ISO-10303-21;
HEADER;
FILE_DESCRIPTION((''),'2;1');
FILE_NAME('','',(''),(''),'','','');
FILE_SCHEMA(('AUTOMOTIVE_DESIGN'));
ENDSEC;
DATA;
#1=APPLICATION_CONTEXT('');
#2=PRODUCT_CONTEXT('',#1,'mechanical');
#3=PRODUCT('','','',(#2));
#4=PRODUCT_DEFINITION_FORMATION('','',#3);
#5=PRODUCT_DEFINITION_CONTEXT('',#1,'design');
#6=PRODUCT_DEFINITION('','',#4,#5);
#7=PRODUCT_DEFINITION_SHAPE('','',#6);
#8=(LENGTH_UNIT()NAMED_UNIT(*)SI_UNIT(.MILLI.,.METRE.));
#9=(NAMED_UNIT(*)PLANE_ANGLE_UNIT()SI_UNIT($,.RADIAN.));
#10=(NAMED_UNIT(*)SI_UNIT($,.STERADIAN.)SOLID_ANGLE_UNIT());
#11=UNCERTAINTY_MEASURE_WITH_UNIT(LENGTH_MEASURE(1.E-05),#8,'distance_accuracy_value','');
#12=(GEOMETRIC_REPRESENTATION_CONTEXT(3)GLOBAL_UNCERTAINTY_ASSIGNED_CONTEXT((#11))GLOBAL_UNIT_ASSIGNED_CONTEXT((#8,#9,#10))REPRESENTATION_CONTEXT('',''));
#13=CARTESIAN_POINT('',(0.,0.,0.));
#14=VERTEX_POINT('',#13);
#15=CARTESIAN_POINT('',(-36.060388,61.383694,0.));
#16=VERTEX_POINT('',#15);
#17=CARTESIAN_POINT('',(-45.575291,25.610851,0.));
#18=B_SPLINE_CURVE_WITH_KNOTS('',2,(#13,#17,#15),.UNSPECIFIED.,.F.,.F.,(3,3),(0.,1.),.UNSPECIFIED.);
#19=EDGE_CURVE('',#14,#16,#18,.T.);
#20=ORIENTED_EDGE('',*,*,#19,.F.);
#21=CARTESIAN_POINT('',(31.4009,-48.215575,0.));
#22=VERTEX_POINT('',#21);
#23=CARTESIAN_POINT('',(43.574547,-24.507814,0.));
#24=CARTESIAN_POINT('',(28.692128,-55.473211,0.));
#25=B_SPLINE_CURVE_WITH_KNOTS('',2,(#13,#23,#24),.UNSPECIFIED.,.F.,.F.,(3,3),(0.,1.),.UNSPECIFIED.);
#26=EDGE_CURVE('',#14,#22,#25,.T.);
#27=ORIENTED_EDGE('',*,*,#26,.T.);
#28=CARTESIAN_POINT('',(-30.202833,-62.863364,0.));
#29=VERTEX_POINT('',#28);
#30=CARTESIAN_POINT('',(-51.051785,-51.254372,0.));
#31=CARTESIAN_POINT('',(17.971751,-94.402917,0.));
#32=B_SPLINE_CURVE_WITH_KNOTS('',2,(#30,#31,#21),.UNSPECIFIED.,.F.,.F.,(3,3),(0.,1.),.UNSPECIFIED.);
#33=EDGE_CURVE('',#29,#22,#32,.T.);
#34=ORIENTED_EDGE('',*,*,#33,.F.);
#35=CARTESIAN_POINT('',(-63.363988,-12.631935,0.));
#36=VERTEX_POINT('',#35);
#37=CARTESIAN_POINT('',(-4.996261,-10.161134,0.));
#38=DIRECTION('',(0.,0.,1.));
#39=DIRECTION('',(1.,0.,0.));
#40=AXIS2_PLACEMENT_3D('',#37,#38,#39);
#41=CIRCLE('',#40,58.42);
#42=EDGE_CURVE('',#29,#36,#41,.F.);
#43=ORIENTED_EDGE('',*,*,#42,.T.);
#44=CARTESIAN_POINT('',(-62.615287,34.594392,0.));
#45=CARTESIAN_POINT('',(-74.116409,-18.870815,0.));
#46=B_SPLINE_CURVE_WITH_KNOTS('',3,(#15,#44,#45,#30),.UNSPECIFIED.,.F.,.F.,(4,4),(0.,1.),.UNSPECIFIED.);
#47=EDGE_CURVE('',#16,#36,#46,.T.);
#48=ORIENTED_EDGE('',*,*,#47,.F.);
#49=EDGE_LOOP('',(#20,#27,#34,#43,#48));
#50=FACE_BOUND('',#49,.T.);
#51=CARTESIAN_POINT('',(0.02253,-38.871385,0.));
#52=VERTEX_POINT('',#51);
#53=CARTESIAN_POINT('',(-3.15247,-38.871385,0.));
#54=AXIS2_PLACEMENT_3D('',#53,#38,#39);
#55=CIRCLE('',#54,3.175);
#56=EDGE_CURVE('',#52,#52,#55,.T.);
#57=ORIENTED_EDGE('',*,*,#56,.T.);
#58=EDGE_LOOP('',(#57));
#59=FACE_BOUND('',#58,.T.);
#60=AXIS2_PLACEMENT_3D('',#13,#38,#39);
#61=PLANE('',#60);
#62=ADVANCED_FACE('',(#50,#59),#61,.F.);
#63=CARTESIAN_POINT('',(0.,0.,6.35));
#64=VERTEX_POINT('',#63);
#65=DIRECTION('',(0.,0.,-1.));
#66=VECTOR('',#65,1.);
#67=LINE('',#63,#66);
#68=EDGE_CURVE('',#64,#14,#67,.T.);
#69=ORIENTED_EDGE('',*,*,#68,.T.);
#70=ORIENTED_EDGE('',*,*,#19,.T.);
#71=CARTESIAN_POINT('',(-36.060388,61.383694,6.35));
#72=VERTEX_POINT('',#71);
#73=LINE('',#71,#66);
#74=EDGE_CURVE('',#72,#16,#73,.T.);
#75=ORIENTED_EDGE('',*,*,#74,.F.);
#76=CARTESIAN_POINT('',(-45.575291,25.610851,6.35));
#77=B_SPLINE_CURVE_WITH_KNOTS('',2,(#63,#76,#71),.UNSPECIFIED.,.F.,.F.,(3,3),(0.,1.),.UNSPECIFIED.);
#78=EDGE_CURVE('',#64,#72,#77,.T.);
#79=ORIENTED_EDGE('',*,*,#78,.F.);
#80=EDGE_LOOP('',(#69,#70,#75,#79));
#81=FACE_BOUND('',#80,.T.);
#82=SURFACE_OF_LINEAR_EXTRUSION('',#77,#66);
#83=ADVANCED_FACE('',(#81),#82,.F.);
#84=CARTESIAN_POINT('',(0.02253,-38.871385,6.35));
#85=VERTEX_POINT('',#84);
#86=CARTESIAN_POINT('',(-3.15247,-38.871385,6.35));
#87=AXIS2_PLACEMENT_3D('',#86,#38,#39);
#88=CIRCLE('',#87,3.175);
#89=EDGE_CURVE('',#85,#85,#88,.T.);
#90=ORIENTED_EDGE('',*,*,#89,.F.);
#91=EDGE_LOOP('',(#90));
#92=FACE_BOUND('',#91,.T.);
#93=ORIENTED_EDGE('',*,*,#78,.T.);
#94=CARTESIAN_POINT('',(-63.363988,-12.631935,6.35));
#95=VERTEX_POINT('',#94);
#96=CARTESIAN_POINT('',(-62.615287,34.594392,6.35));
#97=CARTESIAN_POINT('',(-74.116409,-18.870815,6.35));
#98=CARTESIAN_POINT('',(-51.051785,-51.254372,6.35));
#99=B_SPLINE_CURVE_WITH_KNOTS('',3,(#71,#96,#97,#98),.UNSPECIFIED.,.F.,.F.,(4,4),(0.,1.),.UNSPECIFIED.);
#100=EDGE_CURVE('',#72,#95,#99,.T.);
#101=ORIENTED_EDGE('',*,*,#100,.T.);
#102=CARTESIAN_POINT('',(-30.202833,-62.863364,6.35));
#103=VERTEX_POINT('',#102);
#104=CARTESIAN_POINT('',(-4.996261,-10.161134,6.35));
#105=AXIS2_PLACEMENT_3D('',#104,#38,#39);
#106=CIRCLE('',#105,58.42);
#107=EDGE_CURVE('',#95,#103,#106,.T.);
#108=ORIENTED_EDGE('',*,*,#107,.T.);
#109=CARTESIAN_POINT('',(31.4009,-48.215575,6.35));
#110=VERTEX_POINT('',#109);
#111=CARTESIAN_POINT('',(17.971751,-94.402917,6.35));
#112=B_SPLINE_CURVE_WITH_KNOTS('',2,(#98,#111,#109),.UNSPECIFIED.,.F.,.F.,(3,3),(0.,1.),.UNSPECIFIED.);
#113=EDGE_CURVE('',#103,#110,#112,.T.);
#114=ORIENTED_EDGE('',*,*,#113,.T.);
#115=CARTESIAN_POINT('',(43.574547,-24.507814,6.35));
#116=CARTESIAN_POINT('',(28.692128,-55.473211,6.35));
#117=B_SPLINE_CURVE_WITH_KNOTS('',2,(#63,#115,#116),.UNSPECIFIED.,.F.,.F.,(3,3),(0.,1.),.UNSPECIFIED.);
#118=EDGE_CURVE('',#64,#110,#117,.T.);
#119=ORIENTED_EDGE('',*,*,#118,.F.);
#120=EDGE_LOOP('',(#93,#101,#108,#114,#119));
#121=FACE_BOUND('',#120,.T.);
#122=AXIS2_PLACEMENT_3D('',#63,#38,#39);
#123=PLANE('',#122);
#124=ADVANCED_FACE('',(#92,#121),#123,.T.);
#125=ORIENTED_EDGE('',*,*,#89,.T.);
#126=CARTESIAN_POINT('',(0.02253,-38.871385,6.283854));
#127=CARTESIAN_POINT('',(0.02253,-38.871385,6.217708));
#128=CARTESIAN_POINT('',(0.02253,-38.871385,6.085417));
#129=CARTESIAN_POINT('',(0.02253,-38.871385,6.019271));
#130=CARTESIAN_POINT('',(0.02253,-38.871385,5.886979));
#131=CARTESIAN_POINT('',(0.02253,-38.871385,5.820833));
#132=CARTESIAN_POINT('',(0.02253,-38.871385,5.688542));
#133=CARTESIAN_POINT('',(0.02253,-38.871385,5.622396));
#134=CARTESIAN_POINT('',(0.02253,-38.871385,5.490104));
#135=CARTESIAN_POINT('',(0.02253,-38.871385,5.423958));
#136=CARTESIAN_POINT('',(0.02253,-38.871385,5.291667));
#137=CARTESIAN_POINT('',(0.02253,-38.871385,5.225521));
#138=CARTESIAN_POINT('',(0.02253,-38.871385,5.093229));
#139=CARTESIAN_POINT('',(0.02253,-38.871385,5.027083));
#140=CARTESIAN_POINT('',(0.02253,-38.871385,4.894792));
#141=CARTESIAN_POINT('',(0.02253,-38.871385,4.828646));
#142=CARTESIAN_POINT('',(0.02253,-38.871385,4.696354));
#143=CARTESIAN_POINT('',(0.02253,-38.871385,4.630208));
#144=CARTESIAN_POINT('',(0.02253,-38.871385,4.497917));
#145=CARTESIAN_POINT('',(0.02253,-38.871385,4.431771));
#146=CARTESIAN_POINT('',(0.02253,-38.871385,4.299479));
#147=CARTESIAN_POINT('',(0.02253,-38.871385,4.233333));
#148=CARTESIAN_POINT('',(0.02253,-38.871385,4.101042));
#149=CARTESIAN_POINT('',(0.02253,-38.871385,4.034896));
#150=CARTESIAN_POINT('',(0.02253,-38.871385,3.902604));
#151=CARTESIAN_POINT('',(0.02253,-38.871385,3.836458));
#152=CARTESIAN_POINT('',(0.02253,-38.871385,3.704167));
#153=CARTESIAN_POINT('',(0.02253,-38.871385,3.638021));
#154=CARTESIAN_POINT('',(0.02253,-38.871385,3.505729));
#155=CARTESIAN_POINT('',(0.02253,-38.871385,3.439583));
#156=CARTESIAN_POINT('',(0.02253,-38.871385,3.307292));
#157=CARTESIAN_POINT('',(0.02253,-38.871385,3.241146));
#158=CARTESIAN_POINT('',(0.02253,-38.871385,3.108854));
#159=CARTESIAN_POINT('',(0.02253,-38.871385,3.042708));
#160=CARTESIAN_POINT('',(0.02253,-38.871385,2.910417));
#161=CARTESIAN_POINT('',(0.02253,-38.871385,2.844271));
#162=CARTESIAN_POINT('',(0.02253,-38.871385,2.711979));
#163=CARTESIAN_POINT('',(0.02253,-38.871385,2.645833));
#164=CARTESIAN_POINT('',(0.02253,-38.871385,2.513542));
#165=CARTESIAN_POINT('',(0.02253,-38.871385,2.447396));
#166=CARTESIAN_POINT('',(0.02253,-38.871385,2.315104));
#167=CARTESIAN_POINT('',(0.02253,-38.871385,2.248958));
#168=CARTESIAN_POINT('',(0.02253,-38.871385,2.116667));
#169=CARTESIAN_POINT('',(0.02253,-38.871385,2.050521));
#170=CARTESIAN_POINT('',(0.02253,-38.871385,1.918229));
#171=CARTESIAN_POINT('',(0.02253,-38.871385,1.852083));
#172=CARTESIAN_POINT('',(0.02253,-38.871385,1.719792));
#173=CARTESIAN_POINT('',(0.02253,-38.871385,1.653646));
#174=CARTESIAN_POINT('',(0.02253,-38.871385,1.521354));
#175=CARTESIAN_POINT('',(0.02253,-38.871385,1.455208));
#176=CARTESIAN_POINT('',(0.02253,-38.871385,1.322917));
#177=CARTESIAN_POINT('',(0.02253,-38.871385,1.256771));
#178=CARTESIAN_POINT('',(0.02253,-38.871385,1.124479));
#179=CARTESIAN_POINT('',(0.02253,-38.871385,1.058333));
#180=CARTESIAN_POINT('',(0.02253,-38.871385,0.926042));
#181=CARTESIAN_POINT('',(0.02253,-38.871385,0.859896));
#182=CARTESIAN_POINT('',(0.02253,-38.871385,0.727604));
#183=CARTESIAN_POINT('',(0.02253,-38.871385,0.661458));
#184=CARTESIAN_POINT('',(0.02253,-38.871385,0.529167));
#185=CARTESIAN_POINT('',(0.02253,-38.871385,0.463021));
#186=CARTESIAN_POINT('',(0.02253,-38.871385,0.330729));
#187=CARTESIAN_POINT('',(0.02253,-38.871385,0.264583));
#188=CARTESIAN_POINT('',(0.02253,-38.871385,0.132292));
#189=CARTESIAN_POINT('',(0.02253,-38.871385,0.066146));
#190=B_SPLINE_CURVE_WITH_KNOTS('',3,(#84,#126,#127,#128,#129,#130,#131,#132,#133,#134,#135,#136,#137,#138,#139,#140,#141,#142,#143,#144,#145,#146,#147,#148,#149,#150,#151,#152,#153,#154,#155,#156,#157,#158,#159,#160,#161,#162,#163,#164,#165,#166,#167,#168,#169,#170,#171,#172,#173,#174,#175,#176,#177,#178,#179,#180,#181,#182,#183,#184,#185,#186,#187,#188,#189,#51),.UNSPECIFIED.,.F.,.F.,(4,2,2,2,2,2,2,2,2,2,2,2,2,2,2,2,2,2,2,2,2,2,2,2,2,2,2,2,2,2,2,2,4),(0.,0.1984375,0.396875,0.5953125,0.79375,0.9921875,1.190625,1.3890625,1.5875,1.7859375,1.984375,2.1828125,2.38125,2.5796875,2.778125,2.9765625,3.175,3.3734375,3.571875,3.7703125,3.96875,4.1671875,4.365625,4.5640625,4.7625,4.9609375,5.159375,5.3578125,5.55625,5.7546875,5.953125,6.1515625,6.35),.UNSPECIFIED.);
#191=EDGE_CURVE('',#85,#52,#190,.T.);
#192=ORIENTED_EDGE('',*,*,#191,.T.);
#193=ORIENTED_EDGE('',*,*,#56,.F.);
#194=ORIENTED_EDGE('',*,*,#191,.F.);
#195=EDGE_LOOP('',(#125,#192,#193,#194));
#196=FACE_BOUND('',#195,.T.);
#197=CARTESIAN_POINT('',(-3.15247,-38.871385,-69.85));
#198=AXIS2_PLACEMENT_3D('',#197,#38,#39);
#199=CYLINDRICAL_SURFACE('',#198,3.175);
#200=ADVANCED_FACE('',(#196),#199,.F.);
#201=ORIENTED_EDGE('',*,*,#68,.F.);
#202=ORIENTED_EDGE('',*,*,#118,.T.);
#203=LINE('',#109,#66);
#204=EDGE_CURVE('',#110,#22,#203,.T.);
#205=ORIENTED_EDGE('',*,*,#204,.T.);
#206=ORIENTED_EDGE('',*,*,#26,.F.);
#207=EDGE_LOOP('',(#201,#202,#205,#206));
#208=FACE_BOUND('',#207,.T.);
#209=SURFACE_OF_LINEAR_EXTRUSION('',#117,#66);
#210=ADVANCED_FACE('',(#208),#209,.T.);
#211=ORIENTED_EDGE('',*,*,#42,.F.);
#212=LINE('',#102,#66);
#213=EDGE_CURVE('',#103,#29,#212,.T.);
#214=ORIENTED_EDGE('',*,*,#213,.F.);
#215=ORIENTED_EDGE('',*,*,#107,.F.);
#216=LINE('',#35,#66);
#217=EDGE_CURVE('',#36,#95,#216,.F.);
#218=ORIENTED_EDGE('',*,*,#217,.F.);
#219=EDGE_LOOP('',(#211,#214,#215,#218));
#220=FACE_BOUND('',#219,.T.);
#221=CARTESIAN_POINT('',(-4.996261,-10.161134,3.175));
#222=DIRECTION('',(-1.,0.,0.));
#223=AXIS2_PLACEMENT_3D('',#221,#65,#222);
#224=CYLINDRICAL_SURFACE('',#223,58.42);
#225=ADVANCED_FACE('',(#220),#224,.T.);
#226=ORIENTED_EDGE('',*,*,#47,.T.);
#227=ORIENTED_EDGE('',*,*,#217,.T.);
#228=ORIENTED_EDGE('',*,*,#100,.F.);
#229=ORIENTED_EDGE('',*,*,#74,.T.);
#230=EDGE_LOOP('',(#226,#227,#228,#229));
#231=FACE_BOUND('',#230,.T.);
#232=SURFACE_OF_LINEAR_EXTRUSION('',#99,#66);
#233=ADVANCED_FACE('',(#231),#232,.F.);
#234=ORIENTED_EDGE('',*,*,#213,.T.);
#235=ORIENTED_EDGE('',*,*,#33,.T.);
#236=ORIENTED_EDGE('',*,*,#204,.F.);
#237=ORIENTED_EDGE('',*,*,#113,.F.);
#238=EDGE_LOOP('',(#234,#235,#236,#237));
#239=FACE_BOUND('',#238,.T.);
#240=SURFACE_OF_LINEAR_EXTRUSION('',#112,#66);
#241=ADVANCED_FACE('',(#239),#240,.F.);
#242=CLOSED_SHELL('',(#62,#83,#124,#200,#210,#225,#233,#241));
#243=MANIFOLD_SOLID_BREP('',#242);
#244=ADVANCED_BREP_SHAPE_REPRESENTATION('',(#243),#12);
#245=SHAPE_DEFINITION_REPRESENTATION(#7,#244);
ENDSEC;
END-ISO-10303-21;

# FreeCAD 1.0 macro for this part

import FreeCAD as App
import Part
import Sketcher

V = App.Vector
Q = App.Units.Quantity


def edges_at(feature, points):
    """Names of the edges that pass closest to the given points."""
    edges = feature.Shape.Edges
    near = lambda p: min(range(len(edges)), key=lambda i: edges[i].distToShape(Part.Vertex(*p))[0])
    return sorted({f"Edge{near(p) + 1}" for p in points})

doc = App.newDocument("Part")
body = doc.addObject("PartDesign::Body", "Body")

# Sketch on XY plane
sketch1 = body.newObject("Sketcher::SketchObject", "Sketch")
sketch1.AttachmentSupport = (doc.getObject("XY_Plane"), [""])
sketch1.MapMode = "FlatFace"
sketch1.addGeometry([
    Part.BSplineCurve([V(0, 0, 0), V(38.404098, -21.599777, 0), V(31.4009, -48.215575, 0)], [3, 3], [0, 0.881342447], False, 2, [1, 1, 1], False),  # 0
    Part.BSplineCurve([V(0, 0, 0), V(-45.575291, 25.610851, 0), V(-36.060388, 61.383694, 0)], [3, 3], [0, 1], False, 2, [1, 1, 1], False),  # 1
    Part.BSplineCurve([V(-36.060388, 61.383694, 0), V(-62.615287, 34.594392, 0), V(-74.116409, -18.870815, 0), V(-51.051785, -51.254372, 0)], [4, 4], [0, 1], False, 3, [1, 1, 1, 1], False),  # 2
    Part.BSplineCurve([V(-51.051785, -51.254372, 0), V(12.058895, -90.706626, 0), V(28.692128, -55.473211, 0)], [3, 3], [0, 0.914335656], False, 2, [1, 1, 1], False),  # 3
    Part.BSplineCurve([V(28.692128, -55.473211, 0), V(30.2505, -52.172183, 0), V(31.4009, -48.215575, 0)], [3, 3], [0.914335656, 1], False, 2, [1, 1, 1], False),  # 4
], False)
sketch1.addConstraint([
    Sketcher.Constraint("Block", 0),
    Sketcher.Constraint("Block", 1),
    Sketcher.Constraint("Block", 2),
    Sketcher.Constraint("Block", 3),
    Sketcher.Constraint("Block", 4),
])
pad1 = body.newObject("PartDesign::Pad", "Pad")
pad1.Profile = sketch1
pad1.Length = Q("0.25 in")

# Sketch on XY plane
sketch2 = body.newObject("Sketcher::SketchObject", "Sketch001")
sketch2.AttachmentSupport = (doc.getObject("XY_Plane"), [""])
sketch2.MapMode = "FlatFace"
sketch2.AttachmentOffset = App.Placement(V(0, 0, 0.25 * 25.4), App.Rotation())
sketch2.addGeometry(Part.Circle(V(-3.2, -38.9, 0), V(0, 0, 1), 3.2), False)
sketch2.addConstraint([
    Sketcher.Constraint("Diameter", 0, Q("0.25 in")),
    Sketcher.Constraint("DistanceX", 0, 3, -1, 1, Q("3.15247 mm")),
    Sketcher.Constraint("DistanceY", 0, 3, -1, 1, Q("38.871385 mm")),
])
pocket1 = body.newObject("PartDesign::Pocket", "Pocket")
pocket1.Profile = sketch2
pocket1.Length = Q("3 in")
doc.recompute()

fillet = body.newObject("PartDesign::Fillet", "Fillet")
fillet.Base = (pocket1, edges_at(pocket1, [(-51.052, -51.254, 3.175)]))
fillet.Radius = Q("2.3 in")

doc.recompute()
